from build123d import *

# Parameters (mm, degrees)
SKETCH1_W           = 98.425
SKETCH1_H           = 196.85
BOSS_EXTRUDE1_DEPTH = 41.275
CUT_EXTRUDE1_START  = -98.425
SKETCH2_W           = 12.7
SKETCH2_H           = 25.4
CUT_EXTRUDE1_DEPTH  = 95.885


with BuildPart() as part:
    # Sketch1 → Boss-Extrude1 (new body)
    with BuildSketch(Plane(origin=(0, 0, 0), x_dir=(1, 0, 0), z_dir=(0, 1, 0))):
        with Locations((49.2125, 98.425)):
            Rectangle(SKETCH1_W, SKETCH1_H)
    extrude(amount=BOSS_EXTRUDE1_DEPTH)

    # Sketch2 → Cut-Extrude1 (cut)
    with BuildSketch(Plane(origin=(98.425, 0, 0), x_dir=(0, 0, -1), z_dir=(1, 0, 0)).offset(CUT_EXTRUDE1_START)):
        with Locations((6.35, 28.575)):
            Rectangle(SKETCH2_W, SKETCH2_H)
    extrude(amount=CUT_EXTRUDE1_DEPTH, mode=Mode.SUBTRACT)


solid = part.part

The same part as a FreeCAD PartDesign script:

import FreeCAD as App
import Part
import Sketcher
Q = App.Units.Quantity

doc = App.newDocument("Part")
body = doc.addObject("PartDesign::Body", "Body")

sketch1 = body.newObject("Sketcher::SketchObject", "Sketch")
sketch1.AttachmentSupport = (doc.getObject("XZ_Plane"), [""])
sketch1.MapMode = "FlatFace"
sketch1.addGeometry(Part.LineSegment(App.Vector(0, -197, 0), App.Vector(0, 0, 0)), False)
sketch1.addGeometry(Part.LineSegment(App.Vector(0, 0, 0), App.Vector(98, 0, 0)), False)
sketch1.addGeometry(Part.LineSegment(App.Vector(98, 0, 0), App.Vector(98, -197, 0)), False)
sketch1.addGeometry(Part.LineSegment(App.Vector(98, -197, 0), App.Vector(0, -197, 0)), False)
sketch1.addConstraint(Sketcher.Constraint("Coincident", 0, 2, 1, 1))
sketch1.addConstraint(Sketcher.Constraint("Coincident", 1, 2, 2, 1))
sketch1.addConstraint(Sketcher.Constraint("Coincident", 2, 2, 3, 1))
sketch1.addConstraint(Sketcher.Constraint("Coincident", 3, 2, 0, 1))
sketch1.addConstraint(Sketcher.Constraint("Vertical", 0))
sketch1.addConstraint(Sketcher.Constraint("Horizontal", 1))
sketch1.addConstraint(Sketcher.Constraint("Vertical", 2))
sketch1.addConstraint(Sketcher.Constraint("Horizontal", 3))
sketch1.addConstraint(Sketcher.Constraint("Coincident", 0, 2, -1, 1))
sketch1.addConstraint(Sketcher.Constraint("DistanceY", 0, 1, 0, 2, Q("7.75 in")))
sketch1.addConstraint(Sketcher.Constraint("DistanceX", 1, 1, 1, 2, Q("3.875 in")))
pad1 = body.newObject("PartDesign::Pad", "Pad")
pad1.Profile = sketch1
pad1.Length = Q("1.625 in")
pad1.Reversed = True

sketch2 = body.newObject("Sketcher::SketchObject", "Sketch001")
sketch2.AttachmentSupport = (doc.getObject("YZ_Plane"), [""])
sketch2.MapMode = "FlatFace"
sketch2.addGeometry(Part.LineSegment(App.Vector(41, 0, 0), App.Vector(16, 0, 0)), False)
sketch2.addGeometry(Part.LineSegment(App.Vector(16, 0, 0), App.Vector(16, -13, 0)), False)
sketch2.addGeometry(Part.LineSegment(App.Vector(16, -13, 0), App.Vector(41, -13, 0)), False)
sketch2.addGeometry(Part.LineSegment(App.Vector(41, -13, 0), App.Vector(41, 0, 0)), False)
sketch2.addConstraint(Sketcher.Constraint("Coincident", 0, 2, 1, 1))
sketch2.addConstraint(Sketcher.Constraint("Coincident", 1, 2, 2, 1))
sketch2.addConstraint(Sketcher.Constraint("Coincident", 2, 2, 3, 1))
sketch2.addConstraint(Sketcher.Constraint("Coincident", 3, 2, 0, 1))
sketch2.addConstraint(Sketcher.Constraint("Horizontal", 0))
sketch2.addConstraint(Sketcher.Constraint("Vertical", 1))
sketch2.addConstraint(Sketcher.Constraint("Horizontal", 2))
sketch2.addConstraint(Sketcher.Constraint("Vertical", 3))
sketch2.addConstraint(Sketcher.Constraint("PointOnObject", 0, 2, -1))
sketch2.addConstraint(Sketcher.Constraint("DistanceX", 0, 2, 0, 1, Q("1 in")))
sketch2.addConstraint(Sketcher.Constraint("DistanceY", 1, 2, 1, 1, Q("0.5 in")))
sketch2.addConstraint(Sketcher.Constraint("DistanceX", -1, 1, 0, 2, Q("0.625 in")))
pocket1 = body.newObject("PartDesign::Pocket", "Pocket")
pocket1.Profile = sketch2
pocket1.Length = Q("3.775 in")
pocket1.Reversed = True

doc.recompute()
